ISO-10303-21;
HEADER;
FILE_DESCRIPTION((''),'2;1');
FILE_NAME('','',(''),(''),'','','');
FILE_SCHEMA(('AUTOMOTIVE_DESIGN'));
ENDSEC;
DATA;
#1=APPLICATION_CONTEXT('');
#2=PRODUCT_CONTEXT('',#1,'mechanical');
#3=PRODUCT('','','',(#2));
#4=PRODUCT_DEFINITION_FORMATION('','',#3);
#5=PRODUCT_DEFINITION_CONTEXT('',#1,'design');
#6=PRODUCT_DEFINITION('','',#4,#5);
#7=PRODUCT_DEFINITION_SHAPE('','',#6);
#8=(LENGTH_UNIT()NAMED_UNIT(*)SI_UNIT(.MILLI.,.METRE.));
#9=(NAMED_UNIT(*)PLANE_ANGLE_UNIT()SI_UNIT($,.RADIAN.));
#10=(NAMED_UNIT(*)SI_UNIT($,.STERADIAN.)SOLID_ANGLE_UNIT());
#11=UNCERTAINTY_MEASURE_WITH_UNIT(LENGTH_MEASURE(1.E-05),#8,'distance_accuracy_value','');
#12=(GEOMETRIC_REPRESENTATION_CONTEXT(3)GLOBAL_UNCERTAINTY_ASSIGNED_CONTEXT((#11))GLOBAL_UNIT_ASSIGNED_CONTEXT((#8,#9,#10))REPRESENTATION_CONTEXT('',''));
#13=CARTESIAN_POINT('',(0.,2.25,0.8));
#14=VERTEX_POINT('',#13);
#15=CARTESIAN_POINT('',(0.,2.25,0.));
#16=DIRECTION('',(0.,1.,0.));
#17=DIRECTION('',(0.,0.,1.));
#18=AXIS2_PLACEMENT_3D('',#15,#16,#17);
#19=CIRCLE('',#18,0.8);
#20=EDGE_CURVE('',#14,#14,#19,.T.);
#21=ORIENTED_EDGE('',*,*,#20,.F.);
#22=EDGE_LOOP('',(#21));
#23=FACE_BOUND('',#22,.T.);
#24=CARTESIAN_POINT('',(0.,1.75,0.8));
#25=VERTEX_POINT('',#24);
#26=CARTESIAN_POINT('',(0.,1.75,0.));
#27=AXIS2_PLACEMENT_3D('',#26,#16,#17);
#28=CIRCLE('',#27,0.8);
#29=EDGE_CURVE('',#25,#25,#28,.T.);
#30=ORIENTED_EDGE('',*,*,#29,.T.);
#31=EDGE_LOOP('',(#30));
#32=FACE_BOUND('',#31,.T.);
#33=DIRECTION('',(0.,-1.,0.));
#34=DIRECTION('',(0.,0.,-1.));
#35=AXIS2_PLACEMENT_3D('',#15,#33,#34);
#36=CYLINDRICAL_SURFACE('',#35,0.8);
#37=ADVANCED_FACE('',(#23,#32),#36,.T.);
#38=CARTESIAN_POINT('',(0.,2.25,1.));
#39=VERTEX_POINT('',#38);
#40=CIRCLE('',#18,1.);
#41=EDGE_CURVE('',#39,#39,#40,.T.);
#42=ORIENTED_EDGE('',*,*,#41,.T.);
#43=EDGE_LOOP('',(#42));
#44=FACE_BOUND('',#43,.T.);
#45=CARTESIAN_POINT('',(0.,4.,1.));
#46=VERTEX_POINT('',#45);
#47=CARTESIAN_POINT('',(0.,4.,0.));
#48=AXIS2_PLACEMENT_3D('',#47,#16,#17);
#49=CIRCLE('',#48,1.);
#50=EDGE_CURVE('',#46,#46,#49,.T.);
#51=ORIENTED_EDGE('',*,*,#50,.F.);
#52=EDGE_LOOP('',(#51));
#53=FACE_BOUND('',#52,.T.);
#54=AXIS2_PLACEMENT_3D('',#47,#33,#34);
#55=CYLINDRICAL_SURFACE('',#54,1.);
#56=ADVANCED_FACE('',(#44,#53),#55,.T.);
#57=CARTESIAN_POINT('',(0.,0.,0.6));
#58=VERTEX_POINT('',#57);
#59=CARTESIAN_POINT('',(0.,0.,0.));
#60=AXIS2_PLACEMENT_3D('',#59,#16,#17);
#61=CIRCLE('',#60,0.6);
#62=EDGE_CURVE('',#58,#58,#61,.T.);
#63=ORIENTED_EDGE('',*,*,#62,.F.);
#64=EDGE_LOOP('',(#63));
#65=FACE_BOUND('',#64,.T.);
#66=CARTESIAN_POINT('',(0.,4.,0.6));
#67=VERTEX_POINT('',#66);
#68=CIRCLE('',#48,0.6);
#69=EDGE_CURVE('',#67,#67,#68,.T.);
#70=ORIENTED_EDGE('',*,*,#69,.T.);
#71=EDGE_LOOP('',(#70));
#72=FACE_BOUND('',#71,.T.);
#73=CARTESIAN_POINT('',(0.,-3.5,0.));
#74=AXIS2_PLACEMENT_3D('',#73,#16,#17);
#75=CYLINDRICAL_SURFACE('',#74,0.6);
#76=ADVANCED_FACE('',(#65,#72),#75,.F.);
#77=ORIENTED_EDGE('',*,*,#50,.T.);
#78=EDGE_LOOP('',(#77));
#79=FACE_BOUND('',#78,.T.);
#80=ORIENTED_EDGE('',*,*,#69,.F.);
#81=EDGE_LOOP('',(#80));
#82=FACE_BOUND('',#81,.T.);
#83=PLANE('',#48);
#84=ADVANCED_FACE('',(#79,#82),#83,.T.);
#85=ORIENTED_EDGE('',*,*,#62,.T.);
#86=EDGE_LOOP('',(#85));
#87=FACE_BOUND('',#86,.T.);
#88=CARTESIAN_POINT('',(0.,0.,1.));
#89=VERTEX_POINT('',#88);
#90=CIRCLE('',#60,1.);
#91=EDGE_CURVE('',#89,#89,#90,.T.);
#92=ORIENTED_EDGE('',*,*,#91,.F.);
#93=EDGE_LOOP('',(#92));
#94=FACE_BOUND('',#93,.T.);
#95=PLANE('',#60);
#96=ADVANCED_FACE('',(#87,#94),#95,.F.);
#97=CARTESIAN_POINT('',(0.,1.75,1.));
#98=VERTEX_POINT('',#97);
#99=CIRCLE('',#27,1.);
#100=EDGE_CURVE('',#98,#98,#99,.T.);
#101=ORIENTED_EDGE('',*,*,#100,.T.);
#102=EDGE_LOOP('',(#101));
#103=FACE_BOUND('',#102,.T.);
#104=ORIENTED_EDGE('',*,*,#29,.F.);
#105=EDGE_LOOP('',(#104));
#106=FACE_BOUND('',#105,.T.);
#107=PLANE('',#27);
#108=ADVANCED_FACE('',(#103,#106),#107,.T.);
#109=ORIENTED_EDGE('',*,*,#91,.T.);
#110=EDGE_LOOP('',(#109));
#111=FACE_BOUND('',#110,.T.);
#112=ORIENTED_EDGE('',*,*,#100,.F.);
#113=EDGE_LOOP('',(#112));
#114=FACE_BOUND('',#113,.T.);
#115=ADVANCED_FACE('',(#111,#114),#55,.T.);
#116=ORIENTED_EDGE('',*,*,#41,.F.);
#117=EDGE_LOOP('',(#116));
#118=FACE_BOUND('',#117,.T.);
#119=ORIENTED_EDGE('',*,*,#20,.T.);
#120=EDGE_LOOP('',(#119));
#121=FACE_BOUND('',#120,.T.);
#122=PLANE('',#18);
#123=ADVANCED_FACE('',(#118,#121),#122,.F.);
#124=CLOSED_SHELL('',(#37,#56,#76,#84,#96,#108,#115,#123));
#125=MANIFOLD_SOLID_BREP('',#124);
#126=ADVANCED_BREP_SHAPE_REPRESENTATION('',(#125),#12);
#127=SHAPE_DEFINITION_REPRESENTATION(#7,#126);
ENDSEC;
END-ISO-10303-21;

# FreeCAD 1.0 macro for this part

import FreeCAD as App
import Part
import Sketcher
from FreeCAD import Vector

doc = App.newDocument("Part")
body = doc.addObject("PartDesign::Body", "Body")

sketch1 = body.newObject("Sketcher::SketchObject", "Sketch")
sketch1.AttachmentSupport = (doc.getObject("XZ_Plane"), [""])
sketch1.MapMode = "FlatFace"
sketch1.addGeometry(Part.Circle(Vector(0, 0, 0), Vector(0, 0, 1), 1), False)
sketch1.addConstraint(Sketcher.Constraint("Coincident", 0, 3, -1, 1))
sketch1.addConstraint(Sketcher.Constraint("Diameter", 0, 2.0))
pad1 = body.newObject("PartDesign::Pad", "Pad")
pad1.Profile = sketch1
pad1.Length = 4
pad1.Reversed = True

sketch2 = body.newObject("Sketcher::SketchObject", "Sketch001")
sketch2.AttachmentSupport = (doc.getObject("XZ_Plane"), [""])
sketch2.MapMode = "FlatFace"
sketch2.AttachmentOffset = App.Placement(Vector(0, 0, -2), App.Rotation())
sketch2.addGeometry(Part.LineSegment(Vector(-2.5, -2.5, 0), Vector(-2.5, 2.5, 0)), False)
sketch2.addGeometry(Part.LineSegment(Vector(-2.5, 2.5, 0), Vector(2.5, 2.5, 0)), False)
sketch2.addGeometry(Part.LineSegment(Vector(2.5, 2.5, 0), Vector(2.5, -2.5, 0)), False)
sketch2.addGeometry(Part.LineSegment(Vector(2.5, -2.5, 0), Vector(-2.5, -2.5, 0)), False)
sketch2.addGeometry(Part.Circle(Vector(0, 0, 0), Vector(0, 0, 1), 0.8), False)
sketch2.addConstraint(Sketcher.Constraint("Coincident", 0, 2, 1, 1))
sketch2.addConstraint(Sketcher.Constraint("Coincident", 1, 2, 2, 1))
sketch2.addConstraint(Sketcher.Constraint("Coincident", 2, 2, 3, 1))
sketch2.addConstraint(Sketcher.Constraint("Coincident", 3, 2, 0, 1))
sketch2.addConstraint(Sketcher.Constraint("Vertical", 0))
sketch2.addConstraint(Sketcher.Constraint("Horizontal", 1))
sketch2.addConstraint(Sketcher.Constraint("Vertical", 2))
sketch2.addConstraint(Sketcher.Constraint("Horizontal", 3))
sketch2.addConstraint(Sketcher.Constraint("Coincident", 4, 3, -1, 1))
sketch2.addConstraint(Sketcher.Constraint("Symmetric", 0, 2, 2, 2, -1, 1))
sketch2.addConstraint(Sketcher.Constraint("Equal", 3, 0))
sketch2.addConstraint(Sketcher.Constraint("Diameter", 4, 1.6))
sketch2.addConstraint(Sketcher.Constraint("DistanceX", 1, 1, 1, 2, 4.98))
pocket1 = body.newObject("PartDesign::Pocket", "Pocket")
pocket1.Profile = sketch2
pocket1.Type = "TwoLengths"
pocket1.Length = 0.25
pocket1.Length2 = 0.25

sketch3 = body.newObject("Sketcher::SketchObject", "Sketch002")
sketch3.AttachmentSupport = (doc.getObject("XZ_Plane"), [""])
sketch3.MapMode = "FlatFace"
sketch3.AttachmentOffset = App.Placement(Vector(0, 0, -4), App.Rotation())
sketch3.addGeometry(Part.Circle(Vector(0, 0, 0), Vector(0, 0, 1), 0.6), False)
sketch3.addConstraint(Sketcher.Constraint("Coincident", 0, 3, -1, 1))
sketch3.addConstraint(Sketcher.Constraint("Diameter", 0, 1.2))
pocket2 = body.newObject("PartDesign::Pocket", "Pocket001")
pocket2.Profile = sketch3
pocket2.Length = 7.5
pocket2.Reversed = True

doc.recompute()
